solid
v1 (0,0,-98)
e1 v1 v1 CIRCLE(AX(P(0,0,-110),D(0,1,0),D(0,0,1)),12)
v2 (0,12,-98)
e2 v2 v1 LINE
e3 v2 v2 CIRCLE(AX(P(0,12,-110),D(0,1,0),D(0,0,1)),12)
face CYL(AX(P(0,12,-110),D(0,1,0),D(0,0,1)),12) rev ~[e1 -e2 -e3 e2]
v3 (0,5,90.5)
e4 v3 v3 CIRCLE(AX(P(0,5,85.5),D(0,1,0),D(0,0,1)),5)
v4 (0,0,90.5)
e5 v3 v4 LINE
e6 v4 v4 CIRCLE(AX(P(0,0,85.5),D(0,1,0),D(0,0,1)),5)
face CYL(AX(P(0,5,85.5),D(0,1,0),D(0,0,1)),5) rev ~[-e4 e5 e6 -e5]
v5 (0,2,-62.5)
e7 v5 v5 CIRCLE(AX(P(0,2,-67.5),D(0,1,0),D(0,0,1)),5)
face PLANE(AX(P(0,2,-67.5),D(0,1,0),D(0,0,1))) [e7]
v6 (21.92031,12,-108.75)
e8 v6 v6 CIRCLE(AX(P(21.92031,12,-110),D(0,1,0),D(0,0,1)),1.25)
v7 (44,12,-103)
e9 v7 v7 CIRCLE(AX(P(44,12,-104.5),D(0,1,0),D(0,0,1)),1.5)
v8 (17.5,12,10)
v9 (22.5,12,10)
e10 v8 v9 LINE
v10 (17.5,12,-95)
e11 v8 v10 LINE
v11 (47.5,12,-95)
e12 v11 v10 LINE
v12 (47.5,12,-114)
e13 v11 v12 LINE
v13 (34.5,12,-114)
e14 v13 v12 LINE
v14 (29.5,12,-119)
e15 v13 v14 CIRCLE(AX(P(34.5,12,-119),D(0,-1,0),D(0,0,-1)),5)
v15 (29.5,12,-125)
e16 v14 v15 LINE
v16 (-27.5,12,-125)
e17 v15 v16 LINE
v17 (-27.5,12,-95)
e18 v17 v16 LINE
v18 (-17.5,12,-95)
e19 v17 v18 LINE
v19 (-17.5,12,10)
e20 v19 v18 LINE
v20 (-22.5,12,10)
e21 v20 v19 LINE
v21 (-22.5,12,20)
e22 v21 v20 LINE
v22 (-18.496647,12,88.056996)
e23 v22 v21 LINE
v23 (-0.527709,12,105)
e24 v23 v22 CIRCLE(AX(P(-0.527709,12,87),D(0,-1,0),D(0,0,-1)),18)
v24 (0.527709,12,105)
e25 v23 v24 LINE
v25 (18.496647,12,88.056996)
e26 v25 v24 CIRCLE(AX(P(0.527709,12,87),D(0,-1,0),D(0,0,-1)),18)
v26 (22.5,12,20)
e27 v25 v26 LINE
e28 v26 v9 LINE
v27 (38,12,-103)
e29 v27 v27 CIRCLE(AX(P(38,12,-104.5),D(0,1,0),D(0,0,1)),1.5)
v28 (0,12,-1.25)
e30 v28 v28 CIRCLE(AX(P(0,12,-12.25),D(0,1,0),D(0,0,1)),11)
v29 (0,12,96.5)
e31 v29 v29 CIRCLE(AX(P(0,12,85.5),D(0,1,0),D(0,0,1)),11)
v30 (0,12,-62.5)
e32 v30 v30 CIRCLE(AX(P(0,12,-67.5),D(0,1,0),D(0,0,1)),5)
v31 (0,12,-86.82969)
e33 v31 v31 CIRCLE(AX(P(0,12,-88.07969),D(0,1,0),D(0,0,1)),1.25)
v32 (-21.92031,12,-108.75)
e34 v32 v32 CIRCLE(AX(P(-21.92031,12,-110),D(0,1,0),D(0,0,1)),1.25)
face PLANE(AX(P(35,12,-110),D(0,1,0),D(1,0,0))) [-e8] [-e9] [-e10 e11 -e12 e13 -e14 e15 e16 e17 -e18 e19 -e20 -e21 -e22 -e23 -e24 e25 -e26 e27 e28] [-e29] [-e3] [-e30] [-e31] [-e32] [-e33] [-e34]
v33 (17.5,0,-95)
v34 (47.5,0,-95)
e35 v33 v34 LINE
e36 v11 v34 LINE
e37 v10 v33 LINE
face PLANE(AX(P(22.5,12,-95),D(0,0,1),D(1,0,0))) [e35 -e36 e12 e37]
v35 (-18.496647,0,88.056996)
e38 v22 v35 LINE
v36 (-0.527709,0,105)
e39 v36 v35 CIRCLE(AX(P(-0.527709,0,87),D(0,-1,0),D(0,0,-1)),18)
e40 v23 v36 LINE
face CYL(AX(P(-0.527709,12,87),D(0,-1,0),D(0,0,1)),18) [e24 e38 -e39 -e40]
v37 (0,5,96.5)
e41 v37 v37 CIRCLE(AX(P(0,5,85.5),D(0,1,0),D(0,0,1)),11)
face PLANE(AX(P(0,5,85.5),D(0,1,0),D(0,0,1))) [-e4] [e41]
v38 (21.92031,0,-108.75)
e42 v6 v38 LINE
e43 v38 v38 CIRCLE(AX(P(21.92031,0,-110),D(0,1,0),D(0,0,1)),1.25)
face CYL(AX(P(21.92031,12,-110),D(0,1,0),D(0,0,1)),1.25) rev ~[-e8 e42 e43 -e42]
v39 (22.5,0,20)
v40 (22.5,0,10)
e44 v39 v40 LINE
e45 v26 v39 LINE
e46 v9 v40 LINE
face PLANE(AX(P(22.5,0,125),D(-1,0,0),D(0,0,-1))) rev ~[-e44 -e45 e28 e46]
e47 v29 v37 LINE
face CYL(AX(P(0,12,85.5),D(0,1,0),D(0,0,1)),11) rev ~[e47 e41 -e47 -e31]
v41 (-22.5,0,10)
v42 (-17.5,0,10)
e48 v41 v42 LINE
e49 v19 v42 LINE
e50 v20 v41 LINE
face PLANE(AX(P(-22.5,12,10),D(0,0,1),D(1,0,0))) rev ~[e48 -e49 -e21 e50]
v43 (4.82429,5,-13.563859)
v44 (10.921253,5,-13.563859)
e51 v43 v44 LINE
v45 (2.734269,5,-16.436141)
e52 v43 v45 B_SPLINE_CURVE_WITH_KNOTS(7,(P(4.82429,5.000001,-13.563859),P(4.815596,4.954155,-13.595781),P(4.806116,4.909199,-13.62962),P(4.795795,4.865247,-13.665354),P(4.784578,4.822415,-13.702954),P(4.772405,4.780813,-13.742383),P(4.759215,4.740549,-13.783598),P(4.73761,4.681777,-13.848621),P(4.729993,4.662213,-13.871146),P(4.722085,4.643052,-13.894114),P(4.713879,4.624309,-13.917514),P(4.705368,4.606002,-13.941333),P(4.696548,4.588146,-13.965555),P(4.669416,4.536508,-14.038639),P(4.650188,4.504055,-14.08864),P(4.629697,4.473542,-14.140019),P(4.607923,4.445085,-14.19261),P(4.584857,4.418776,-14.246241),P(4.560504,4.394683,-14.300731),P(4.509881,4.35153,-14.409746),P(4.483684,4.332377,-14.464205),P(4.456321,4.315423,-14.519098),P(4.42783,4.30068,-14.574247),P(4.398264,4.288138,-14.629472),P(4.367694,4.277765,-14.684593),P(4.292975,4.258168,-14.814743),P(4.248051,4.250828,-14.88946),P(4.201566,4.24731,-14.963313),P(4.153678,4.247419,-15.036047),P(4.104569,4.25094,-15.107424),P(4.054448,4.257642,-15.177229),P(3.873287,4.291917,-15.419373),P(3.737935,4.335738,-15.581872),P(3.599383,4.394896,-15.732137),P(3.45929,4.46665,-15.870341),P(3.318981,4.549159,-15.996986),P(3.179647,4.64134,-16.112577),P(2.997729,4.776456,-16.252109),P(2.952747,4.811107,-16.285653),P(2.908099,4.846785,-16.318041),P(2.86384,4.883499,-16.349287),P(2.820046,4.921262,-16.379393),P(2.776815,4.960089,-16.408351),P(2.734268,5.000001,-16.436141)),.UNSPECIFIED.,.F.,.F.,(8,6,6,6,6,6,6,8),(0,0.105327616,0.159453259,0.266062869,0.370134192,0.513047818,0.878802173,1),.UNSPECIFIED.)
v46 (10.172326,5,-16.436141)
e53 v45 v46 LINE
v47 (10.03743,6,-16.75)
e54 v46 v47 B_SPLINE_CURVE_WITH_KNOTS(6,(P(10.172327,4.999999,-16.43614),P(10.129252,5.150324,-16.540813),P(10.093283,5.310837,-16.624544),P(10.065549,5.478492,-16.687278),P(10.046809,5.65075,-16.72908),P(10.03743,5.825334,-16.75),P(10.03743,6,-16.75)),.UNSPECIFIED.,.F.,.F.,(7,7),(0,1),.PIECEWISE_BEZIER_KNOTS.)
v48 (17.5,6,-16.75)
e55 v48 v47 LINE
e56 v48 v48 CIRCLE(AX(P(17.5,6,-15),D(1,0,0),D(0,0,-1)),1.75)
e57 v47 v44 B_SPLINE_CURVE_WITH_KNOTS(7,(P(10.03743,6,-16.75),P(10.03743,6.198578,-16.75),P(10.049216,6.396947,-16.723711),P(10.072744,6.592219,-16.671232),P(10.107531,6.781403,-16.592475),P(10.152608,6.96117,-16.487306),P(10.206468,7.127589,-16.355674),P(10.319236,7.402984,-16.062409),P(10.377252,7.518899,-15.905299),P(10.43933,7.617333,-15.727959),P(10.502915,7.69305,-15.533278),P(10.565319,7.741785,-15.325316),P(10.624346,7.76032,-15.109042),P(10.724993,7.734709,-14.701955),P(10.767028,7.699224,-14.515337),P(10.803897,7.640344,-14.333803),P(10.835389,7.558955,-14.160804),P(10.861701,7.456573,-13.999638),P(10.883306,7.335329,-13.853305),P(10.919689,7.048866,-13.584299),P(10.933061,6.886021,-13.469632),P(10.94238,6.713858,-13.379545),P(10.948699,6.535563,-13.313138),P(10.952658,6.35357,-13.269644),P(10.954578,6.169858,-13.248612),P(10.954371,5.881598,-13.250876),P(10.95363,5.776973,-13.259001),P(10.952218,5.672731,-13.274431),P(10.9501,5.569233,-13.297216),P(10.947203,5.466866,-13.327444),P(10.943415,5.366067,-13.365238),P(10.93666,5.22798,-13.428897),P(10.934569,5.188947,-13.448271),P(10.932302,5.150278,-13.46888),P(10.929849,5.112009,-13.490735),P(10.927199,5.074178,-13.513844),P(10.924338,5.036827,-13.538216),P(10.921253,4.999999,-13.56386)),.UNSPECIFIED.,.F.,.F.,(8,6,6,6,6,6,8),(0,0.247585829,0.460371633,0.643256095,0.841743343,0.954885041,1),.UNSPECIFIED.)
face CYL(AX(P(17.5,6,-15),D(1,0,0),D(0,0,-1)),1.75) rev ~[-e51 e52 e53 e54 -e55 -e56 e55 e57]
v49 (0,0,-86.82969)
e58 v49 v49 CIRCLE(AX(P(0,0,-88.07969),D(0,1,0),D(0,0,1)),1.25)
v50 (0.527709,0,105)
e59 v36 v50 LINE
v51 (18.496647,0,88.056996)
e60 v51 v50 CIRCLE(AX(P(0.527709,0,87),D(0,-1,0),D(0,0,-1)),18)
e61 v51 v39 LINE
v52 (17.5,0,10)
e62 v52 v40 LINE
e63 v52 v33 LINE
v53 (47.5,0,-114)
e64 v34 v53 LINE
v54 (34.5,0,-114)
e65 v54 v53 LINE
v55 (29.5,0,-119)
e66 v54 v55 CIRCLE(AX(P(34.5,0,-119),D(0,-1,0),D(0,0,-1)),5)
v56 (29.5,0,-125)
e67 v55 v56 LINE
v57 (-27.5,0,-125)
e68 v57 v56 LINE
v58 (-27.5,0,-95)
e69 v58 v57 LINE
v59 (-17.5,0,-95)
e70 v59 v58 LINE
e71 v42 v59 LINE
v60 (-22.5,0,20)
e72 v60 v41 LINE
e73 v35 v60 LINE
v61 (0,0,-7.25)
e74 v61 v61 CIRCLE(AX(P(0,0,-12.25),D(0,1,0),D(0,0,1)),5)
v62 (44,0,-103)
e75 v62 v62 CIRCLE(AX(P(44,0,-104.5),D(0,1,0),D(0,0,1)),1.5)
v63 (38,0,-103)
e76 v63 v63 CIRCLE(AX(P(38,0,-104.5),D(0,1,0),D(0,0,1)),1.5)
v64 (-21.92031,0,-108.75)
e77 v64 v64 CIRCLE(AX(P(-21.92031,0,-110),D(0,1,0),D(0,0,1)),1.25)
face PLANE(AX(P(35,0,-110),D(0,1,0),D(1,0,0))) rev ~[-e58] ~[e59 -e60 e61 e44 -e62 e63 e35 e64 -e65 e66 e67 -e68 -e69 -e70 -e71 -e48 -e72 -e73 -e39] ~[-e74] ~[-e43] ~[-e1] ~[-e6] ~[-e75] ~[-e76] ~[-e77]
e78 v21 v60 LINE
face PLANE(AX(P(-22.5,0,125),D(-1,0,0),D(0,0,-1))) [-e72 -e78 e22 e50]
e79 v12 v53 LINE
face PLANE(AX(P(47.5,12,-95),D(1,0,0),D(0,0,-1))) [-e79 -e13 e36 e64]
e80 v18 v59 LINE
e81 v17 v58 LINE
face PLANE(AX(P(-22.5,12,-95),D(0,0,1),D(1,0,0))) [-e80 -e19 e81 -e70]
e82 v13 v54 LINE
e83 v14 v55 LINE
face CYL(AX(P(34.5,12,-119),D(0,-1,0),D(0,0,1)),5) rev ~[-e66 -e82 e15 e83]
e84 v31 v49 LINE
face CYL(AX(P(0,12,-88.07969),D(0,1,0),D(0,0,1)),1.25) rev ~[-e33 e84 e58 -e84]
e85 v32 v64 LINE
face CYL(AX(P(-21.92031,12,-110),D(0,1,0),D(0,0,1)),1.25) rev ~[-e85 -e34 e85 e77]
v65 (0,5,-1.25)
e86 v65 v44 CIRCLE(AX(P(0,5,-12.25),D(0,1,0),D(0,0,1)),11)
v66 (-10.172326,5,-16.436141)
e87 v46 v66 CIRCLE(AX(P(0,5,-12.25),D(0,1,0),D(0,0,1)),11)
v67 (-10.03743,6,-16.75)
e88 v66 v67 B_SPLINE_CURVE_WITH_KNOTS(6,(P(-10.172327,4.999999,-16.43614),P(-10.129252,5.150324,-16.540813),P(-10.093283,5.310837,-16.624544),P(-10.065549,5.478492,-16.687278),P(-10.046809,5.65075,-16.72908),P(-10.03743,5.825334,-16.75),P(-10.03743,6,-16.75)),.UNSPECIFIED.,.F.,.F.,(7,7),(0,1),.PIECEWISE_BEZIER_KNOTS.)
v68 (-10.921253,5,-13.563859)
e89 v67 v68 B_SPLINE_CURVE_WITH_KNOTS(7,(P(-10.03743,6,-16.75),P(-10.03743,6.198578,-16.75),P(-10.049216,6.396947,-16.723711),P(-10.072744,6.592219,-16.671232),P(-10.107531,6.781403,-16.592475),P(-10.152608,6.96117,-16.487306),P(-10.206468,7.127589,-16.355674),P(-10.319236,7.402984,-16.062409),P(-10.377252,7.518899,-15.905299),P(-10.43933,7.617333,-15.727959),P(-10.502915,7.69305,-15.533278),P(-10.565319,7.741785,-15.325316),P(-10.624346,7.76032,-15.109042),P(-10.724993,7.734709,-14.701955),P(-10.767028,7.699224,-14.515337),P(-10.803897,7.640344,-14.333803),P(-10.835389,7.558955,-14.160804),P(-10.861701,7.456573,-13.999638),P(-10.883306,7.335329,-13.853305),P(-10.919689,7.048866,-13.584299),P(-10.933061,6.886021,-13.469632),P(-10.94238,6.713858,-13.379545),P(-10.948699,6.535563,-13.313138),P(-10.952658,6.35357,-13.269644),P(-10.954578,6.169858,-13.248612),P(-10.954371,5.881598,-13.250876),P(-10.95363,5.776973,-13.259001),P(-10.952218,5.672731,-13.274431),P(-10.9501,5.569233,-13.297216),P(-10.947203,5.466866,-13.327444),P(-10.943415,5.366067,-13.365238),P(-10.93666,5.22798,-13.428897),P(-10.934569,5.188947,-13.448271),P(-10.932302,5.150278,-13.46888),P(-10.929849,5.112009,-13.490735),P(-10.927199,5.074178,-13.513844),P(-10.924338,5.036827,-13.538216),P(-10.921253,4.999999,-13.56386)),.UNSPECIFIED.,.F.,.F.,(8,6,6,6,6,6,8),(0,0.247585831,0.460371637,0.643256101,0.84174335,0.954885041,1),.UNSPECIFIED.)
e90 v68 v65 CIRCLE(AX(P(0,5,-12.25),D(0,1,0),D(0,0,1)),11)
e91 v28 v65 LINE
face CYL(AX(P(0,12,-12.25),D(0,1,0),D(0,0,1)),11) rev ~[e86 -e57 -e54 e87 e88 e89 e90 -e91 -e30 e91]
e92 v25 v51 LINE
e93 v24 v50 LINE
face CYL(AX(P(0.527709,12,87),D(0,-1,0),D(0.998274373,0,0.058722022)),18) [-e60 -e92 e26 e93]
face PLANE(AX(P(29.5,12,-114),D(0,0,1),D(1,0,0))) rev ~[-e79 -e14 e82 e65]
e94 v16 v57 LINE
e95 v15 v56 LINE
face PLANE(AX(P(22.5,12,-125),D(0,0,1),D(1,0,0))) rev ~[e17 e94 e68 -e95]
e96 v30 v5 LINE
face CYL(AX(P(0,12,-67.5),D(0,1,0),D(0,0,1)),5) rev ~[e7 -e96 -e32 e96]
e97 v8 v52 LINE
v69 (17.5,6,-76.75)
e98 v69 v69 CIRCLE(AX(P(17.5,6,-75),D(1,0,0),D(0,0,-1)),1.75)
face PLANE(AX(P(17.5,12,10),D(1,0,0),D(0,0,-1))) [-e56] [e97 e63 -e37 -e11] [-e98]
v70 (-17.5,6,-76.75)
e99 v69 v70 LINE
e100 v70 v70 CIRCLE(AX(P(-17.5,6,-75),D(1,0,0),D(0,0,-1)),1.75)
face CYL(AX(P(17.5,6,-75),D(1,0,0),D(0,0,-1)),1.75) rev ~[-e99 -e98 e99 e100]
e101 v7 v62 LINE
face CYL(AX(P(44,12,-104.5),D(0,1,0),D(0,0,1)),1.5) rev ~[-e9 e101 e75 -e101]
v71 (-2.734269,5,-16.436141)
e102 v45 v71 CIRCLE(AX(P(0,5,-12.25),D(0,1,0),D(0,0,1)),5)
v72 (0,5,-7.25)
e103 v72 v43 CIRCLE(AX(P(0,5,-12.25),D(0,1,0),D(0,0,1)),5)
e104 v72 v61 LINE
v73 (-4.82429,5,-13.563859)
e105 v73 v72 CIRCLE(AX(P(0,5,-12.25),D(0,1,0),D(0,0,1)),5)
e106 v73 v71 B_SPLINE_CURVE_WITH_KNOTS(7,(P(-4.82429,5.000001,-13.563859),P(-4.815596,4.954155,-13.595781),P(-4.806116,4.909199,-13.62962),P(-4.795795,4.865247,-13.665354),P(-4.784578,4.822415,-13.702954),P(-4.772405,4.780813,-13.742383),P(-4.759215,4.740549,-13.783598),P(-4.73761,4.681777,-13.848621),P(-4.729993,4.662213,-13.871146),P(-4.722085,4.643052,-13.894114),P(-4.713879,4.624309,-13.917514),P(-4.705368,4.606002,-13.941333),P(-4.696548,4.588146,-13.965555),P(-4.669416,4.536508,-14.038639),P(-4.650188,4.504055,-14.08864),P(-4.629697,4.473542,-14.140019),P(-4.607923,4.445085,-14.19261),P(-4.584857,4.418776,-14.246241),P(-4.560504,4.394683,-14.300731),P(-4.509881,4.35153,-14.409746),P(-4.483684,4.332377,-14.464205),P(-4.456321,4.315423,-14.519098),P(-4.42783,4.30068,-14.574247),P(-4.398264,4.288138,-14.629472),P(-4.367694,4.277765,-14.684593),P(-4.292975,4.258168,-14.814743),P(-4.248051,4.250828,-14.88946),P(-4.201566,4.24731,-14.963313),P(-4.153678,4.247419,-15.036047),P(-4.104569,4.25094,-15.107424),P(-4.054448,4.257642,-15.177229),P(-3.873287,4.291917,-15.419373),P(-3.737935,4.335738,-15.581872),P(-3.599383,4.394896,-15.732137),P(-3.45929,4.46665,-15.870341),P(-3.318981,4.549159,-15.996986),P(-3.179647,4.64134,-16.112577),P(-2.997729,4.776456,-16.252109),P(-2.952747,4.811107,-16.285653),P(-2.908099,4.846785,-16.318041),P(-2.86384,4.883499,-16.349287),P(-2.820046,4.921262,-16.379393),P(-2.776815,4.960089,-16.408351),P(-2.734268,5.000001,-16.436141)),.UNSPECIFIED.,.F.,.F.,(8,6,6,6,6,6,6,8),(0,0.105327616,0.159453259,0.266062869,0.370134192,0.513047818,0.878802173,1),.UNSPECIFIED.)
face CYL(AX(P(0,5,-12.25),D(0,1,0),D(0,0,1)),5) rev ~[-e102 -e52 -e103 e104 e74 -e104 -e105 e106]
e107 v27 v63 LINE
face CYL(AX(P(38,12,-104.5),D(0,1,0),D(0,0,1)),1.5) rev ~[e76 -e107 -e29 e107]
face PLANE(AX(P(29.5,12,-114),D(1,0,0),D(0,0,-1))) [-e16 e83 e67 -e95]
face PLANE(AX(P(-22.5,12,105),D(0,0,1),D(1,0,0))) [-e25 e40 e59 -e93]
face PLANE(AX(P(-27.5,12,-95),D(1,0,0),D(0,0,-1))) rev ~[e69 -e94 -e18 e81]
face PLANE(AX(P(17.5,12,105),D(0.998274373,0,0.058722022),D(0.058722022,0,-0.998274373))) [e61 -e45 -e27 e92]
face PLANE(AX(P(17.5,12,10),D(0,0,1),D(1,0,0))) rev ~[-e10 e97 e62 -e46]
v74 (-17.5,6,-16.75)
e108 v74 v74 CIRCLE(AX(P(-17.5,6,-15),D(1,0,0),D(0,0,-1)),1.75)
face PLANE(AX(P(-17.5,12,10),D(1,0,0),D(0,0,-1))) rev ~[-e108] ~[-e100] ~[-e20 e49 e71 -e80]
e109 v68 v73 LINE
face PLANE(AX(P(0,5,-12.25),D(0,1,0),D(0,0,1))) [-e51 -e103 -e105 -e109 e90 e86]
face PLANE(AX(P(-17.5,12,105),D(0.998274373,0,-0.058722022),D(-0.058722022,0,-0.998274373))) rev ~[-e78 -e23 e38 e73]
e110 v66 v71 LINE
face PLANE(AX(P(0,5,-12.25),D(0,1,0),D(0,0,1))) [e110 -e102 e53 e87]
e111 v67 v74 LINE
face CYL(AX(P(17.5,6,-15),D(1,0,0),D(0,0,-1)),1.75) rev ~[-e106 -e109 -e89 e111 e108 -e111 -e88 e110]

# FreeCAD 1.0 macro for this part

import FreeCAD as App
import Part
import Sketcher
Q = App.Units.Quantity


def edges_at(feature, points):
    """Names of the edges that pass closest to the given points."""
    edges = feature.Shape.Edges
    near = lambda p: min(range(len(edges)), key=lambda i: edges[i].distToShape(Part.Vertex(*p))[0])
    return sorted({f"Edge{near(p) + 1}" for p in points})

doc = App.newDocument("Part")
params = doc.addObject("Spreadsheet::Sheet", "Params")
for row, (alias, value) in enumerate([
    ("sketch1_width", "45 mm"),
    ("sketch1_height", "250 mm"),
    ("pad1_length", "12 mm"),
    ("sketch2_width", "5 mm"),
    ("sketch2_height", "105 mm"),
    ("pocket1_length", "12 mm"),
    ("sketch3_diameter", "3.5 mm"),
    ("pocket2_length", "35 mm"),
    ("sketch4_width", "25 mm"),
    ("sketch4_width2", "5 mm"),
    ("sketch4_height", "30 mm"),
    ("pad2_length", "12 mm"),
    ("sketch5_diameter", "24 mm"),
    ("sketch5_diameter2", "2.5 mm"),
    ("pocket3_length", "35 mm"),
    ("sketch6_width", "18 mm"),
    ("sketch6_height", "11 mm"),
    ("pocket4_length", "12 mm"),
    ("sketch7_diameter", "22 mm"),
    ("pocket5_length", "7 mm"),
    ("sketch8_width", "45 mm"),
    ("sketch8_height", "20 mm"),
    ("pocket6_length", "20 mm"),
    ("fillet_radius", "5 mm"),
    ("sketch9_diameter", "10 mm"),
    ("pocket7_length", "10 mm"),
    ("sketch10_diameter", "3 mm"),
    ("pocket8_length", "12 mm"),
    ("sketch11_width", "5 mm"),
    ("sketch11_height", "85 mm"),
    ("pocket9_length", "20 mm"),
    ("fillet2_radius", "18 mm"),
    ("sketch12_diameter", "10 mm"),
    ("pocket10_length", "10 mm"),
], start=1):
    params.set(f"A{row}", alias)
    params.set(f"B{row}", "=" + value)
    params.setAlias(f"B{row}", alias)

body = doc.addObject("PartDesign::Body", "Body")

sketch1 = body.newObject("Sketcher::SketchObject", "Sketch")
sketch1.AttachmentSupport = (doc.getObject("XZ_Plane"), [""])
sketch1.MapMode = "FlatFace"
sketch1.addGeometry(Part.LineSegment(App.Vector(-22.5, -125, 0), App.Vector(-22.5, 125, 0)), False)
sketch1.addGeometry(Part.LineSegment(App.Vector(-22.5, 125, 0), App.Vector(22.5, 125, 0)), False)
sketch1.addGeometry(Part.LineSegment(App.Vector(22.5, 125, 0), App.Vector(22.5, -125, 0)), False)
sketch1.addGeometry(Part.LineSegment(App.Vector(22.5, -125, 0), App.Vector(-22.5, -125, 0)), False)
sketch1.addConstraint(Sketcher.Constraint("Coincident", 0, 2, 1, 1))
sketch1.addConstraint(Sketcher.Constraint("Coincident", 1, 2, 2, 1))
sketch1.addConstraint(Sketcher.Constraint("Coincident", 2, 2, 3, 1))
sketch1.addConstraint(Sketcher.Constraint("Coincident", 3, 2, 0, 1))
sketch1.addConstraint(Sketcher.Constraint("Vertical", 0))
sketch1.addConstraint(Sketcher.Constraint("Horizontal", 1))
sketch1.addConstraint(Sketcher.Constraint("Vertical", 2))
sketch1.addConstraint(Sketcher.Constraint("Horizontal", 3))
sketch1.addConstraint(Sketcher.Constraint("Symmetric", 0, 2, 2, 2, -1, 1))
sketch1.addConstraint(Sketcher.Constraint("DistanceX", 1, 1, 1, 2, Q("45 mm")))
sketch1.addConstraint(Sketcher.Constraint("DistanceY", 0, 1, 0, 2, Q("250 mm")))
sketch1.setExpression("Constraints[9]", "Params.sketch1_width")
sketch1.setExpression("Constraints[10]", "Params.sketch1_height")
pad1 = body.newObject("PartDesign::Pad", "Pad")
pad1.Profile = sketch1
pad1.setExpression("Length", "Params.pad1_length")
pad1.Reversed = True

sketch2 = body.newObject("Sketcher::SketchObject", "Sketch001")
sketch2.AttachmentSupport = (doc.getObject("XZ_Plane"), [""])
sketch2.MapMode = "FlatFace"
sketch2.AttachmentOffset = App.Placement(App.Vector(0, 0, -12), App.Rotation())
sketch2.addGeometry(Part.LineSegment(App.Vector(17.5, -95, 0), App.Vector(17.5, 10, 0)), False)
sketch2.addGeometry(Part.LineSegment(App.Vector(17.5, 10, 0), App.Vector(22.5, 10, 0)), False)
sketch2.addGeometry(Part.LineSegment(App.Vector(22.5, 10, 0), App.Vector(22.5, -95, 0)), False)
sketch2.addGeometry(Part.LineSegment(App.Vector(22.5, -95, 0), App.Vector(17.5, -95, 0)), False)
sketch2.addGeometry(Part.LineSegment(App.Vector(-22.5, -95, 0), App.Vector(-22.5, 10, 0)), False)
sketch2.addGeometry(Part.LineSegment(App.Vector(-22.5, 10, 0), App.Vector(-17.5, 10, 0)), False)
sketch2.addGeometry(Part.LineSegment(App.Vector(-17.5, 10, 0), App.Vector(-17.5, -95, 0)), False)
sketch2.addGeometry(Part.LineSegment(App.Vector(-17.5, -95, 0), App.Vector(-22.5, -95, 0)), False)
sketch2.addConstraint(Sketcher.Constraint("Coincident", 0, 2, 1, 1))
sketch2.addConstraint(Sketcher.Constraint("Coincident", 1, 2, 2, 1))
sketch2.addConstraint(Sketcher.Constraint("Coincident", 2, 2, 3, 1))
sketch2.addConstraint(Sketcher.Constraint("Coincident", 3, 2, 0, 1))
sketch2.addConstraint(Sketcher.Constraint("Coincident", 4, 2, 5, 1))
sketch2.addConstraint(Sketcher.Constraint("Coincident", 5, 2, 6, 1))
sketch2.addConstraint(Sketcher.Constraint("Coincident", 6, 2, 7, 1))
sketch2.addConstraint(Sketcher.Constraint("Coincident", 7, 2, 4, 1))
sketch2.addConstraint(Sketcher.Constraint("Vertical", 0))
sketch2.addConstraint(Sketcher.Constraint("Horizontal", 1))
sketch2.addConstraint(Sketcher.Constraint("Vertical", 2))
sketch2.addConstraint(Sketcher.Constraint("Horizontal", 3))
sketch2.addConstraint(Sketcher.Constraint("Vertical", 4))
sketch2.addConstraint(Sketcher.Constraint("Horizontal", 5))
sketch2.addConstraint(Sketcher.Constraint("Vertical", 6))
sketch2.addConstraint(Sketcher.Constraint("Horizontal", 7))
sketch2.addConstraint(Sketcher.Constraint("Symmetric", 1, 2, 4, 2, -2))
sketch2.addConstraint(Sketcher.Constraint("Symmetric", 3, 2, 6, 2, -2))
sketch2.addConstraint(Sketcher.Constraint("DistanceX", 1, 1, 1, 2, Q("5 mm")))
sketch2.addConstraint(Sketcher.Constraint("DistanceY", 0, 1, 0, 2, Q("105 mm")))
sketch2.addConstraint(Sketcher.Constraint("DistanceY", -1, 1, 0, 2, Q("10 mm")))
sketch2.addConstraint(Sketcher.Constraint("DistanceX", 4, 2, 0, 2, Q("40 mm")))
sketch2.setExpression("Constraints[18]", "Params.sketch2_width")
sketch2.setExpression("Constraints[19]", "Params.sketch2_height")
pocket1 = body.newObject("PartDesign::Pocket", "Pocket")
pocket1.Profile = sketch2
pocket1.setExpression("Length", "Params.pocket1_length")
pocket1.Reversed = True

sketch3 = body.newObject("Sketcher::SketchObject", "Sketch002")
sketch3.AttachmentSupport = (doc.getObject("YZ_Plane"), [""])
sketch3.MapMode = "FlatFace"
sketch3.AttachmentOffset = App.Placement(App.Vector(0, 0, 17.5), App.Rotation())
sketch3.addGeometry(Part.Circle(App.Vector(6, -15, 0), App.Vector(0, 0, 1), 1.75), False)
sketch3.addGeometry(Part.Circle(App.Vector(6, -75, 0), App.Vector(0, 0, 1), 1.75), False)
sketch3.addConstraint(Sketcher.Constraint("Equal", 0, 1))
sketch3.addConstraint(Sketcher.Constraint("Vertical", 0, 3, 1, 3))
sketch3.addConstraint(Sketcher.Constraint("Diameter", 0, Q("3.5 mm")))
sketch3.addConstraint(Sketcher.Constraint("DistanceX", -1, 1, 0, 3, Q("6 mm")))
sketch3.addConstraint(Sketcher.Constraint("DistanceY", 0, 3, -1, 1, Q("15 mm")))
sketch3.addConstraint(Sketcher.Constraint("DistanceY", 1, 3, -1, 1, Q("75 mm")))
sketch3.setExpression("Constraints[2]", "Params.sketch3_diameter")
pocket2 = body.newObject("PartDesign::Pocket", "Pocket001")
pocket2.Profile = sketch3
pocket2.setExpression("Length", "Params.pocket2_length")

sketch4 = body.newObject("Sketcher::SketchObject", "Sketch003")
sketch4.AttachmentSupport = (doc.getObject("XZ_Plane"), [""])
sketch4.MapMode = "FlatFace"
sketch4.AttachmentOffset = App.Placement(App.Vector(0, 0, -12), App.Rotation())
sketch4.addGeometry(Part.LineSegment(App.Vector(22.5, -125, 0), App.Vector(22.5, -95, 0)), False)
sketch4.addGeometry(Part.LineSegment(App.Vector(22.5, -95, 0), App.Vector(47.5, -95, 0)), False)
sketch4.addGeometry(Part.LineSegment(App.Vector(47.5, -95, 0), App.Vector(47.5, -125, 0)), False)
sketch4.addGeometry(Part.LineSegment(App.Vector(47.5, -125, 0), App.Vector(22.5, -125, 0)), False)
sketch4.addGeometry(Part.LineSegment(App.Vector(-27.5, -125, 0), App.Vector(-27.5, -95, 0)), False)
sketch4.addGeometry(Part.LineSegment(App.Vector(-27.5, -95, 0), App.Vector(-22.5, -95, 0)), False)
sketch4.addGeometry(Part.LineSegment(App.Vector(-22.5, -95, 0), App.Vector(-22.5, -125, 0)), False)
sketch4.addGeometry(Part.LineSegment(App.Vector(-22.5, -125, 0), App.Vector(-27.5, -125, 0)), False)
sketch4.addConstraint(Sketcher.Constraint("Coincident", 0, 2, 1, 1))
sketch4.addConstraint(Sketcher.Constraint("Coincident", 1, 2, 2, 1))
sketch4.addConstraint(Sketcher.Constraint("Coincident", 2, 2, 3, 1))
sketch4.addConstraint(Sketcher.Constraint("Coincident", 3, 2, 0, 1))
sketch4.addConstraint(Sketcher.Constraint("Coincident", 4, 2, 5, 1))
sketch4.addConstraint(Sketcher.Constraint("Coincident", 5, 2, 6, 1))
sketch4.addConstraint(Sketcher.Constraint("Coincident", 6, 2, 7, 1))
sketch4.addConstraint(Sketcher.Constraint("Coincident", 7, 2, 4, 1))
sketch4.addConstraint(Sketcher.Constraint("Vertical", 0))
sketch4.addConstraint(Sketcher.Constraint("Horizontal", 1))
sketch4.addConstraint(Sketcher.Constraint("Vertical", 2))
sketch4.addConstraint(Sketcher.Constraint("Horizontal", 3))
sketch4.addConstraint(Sketcher.Constraint("Vertical", 4))
sketch4.addConstraint(Sketcher.Constraint("Horizontal", 5))
sketch4.addConstraint(Sketcher.Constraint("Vertical", 6))
sketch4.addConstraint(Sketcher.Constraint("Horizontal", 7))
sketch4.addConstraint(Sketcher.Constraint("Symmetric", 0, 2, 5, 2, -2))
sketch4.addConstraint(Sketcher.Constraint("Horizontal", 3, 2, 6, 2))
sketch4.addConstraint(Sketcher.Constraint("DistanceX", 1, 1, 1, 2, Q("25 mm")))
sketch4.addConstraint(Sketcher.Constraint("DistanceX", 5, 1, 5, 2, Q("5 mm")))
sketch4.addConstraint(Sketcher.Constraint("DistanceY", 0, 1, 0, 2, Q("30 mm")))
sketch4.addConstraint(Sketcher.Constraint("DistanceY", 0, 2, -1, 1, Q("95 mm")))
sketch4.addConstraint(Sketcher.Constraint("DistanceX", 4, 2, 0, 2, Q("50 mm")))
sketch4.setExpression("Constraints[18]", "Params.sketch4_width")
sketch4.setExpression("Constraints[19]", "Params.sketch4_width2")
sketch4.setExpression("Constraints[20]", "Params.sketch4_height")
pad2 = body.newObject("PartDesign::Pad", "Pad001")
pad2.Profile = sketch4
pad2.setExpression("Length", "Params.pad2_length")

sketch5 = body.newObject("Sketcher::SketchObject", "Sketch004")
sketch5.AttachmentSupport = (doc.getObject("XZ_Plane"), [""])
sketch5.MapMode = "FlatFace"
sketch5.AttachmentOffset = App.Placement(App.Vector(0, 0, -12), App.Rotation())
sketch5.addGeometry(Part.Circle(App.Vector(0, -110, 0), App.Vector(0, 0, 1), 12), False)
sketch5.addGeometry(Part.Circle(App.Vector(21.92031, -110, 0), App.Vector(0, 0, 1), 1.25), False)
sketch5.addGeometry(Part.Circle(App.Vector(-21.92031, -110, 0), App.Vector(0, 0, 1), 1.25), False)
sketch5.addGeometry(Part.Circle(App.Vector(0, -88.07969, 0), App.Vector(0, 0, 1), 1.25), False)
sketch5.addConstraint(Sketcher.Constraint("Equal", 1, 2))
sketch5.addConstraint(Sketcher.Constraint("Equal", 2, 3))
sketch5.addConstraint(Sketcher.Constraint("Symmetric", 1, 3, 2, 3, -2))
sketch5.addConstraint(Sketcher.Constraint("PointOnObject", 0, 3, -2))
sketch5.addConstraint(Sketcher.Constraint("PointOnObject", 3, 3, -2))
sketch5.addConstraint(Sketcher.Constraint("Horizontal", 0, 3, 1, 3))
sketch5.addConstraint(Sketcher.Constraint("Diameter", 0, Q("24 mm")))
sketch5.addConstraint(Sketcher.Constraint("Diameter", 1, Q("2.5 mm")))
sketch5.addConstraint(Sketcher.Constraint("DistanceY", 0, 3, -1, 1, Q("110 mm")))
sketch5.addConstraint(Sketcher.Constraint("DistanceX", -1, 1, 1, 3, Q("21.92031 mm")))
sketch5.addConstraint(Sketcher.Constraint("DistanceY", 3, 3, -1, 1, Q("88.07969 mm")))
sketch5.setExpression("Constraints[6]", "Params.sketch5_diameter")
sketch5.setExpression("Constraints[7]", "Params.sketch5_diameter2")
pocket3 = body.newObject("PartDesign::Pocket", "Pocket002")
pocket3.Profile = sketch5
pocket3.setExpression("Length", "Params.pocket3_length")
pocket3.Reversed = True

sketch6 = body.newObject("Sketcher::SketchObject", "Sketch005")
sketch6.AttachmentSupport = (doc.getObject("XZ_Plane"), [""])
sketch6.MapMode = "FlatFace"
sketch6.AttachmentOffset = App.Placement(App.Vector(0, 0, -12), App.Rotation())
sketch6.addGeometry(Part.LineSegment(App.Vector(29.5, -125, 0), App.Vector(29.5, -114, 0)), False)
sketch6.addGeometry(Part.LineSegment(App.Vector(29.5, -114, 0), App.Vector(47.5, -114, 0)), False)
sketch6.addGeometry(Part.LineSegment(App.Vector(47.5, -114, 0), App.Vector(47.5, -125, 0)), False)
sketch6.addGeometry(Part.LineSegment(App.Vector(47.5, -125, 0), App.Vector(29.5, -125, 0)), False)
sketch6.addConstraint(Sketcher.Constraint("Coincident", 0, 2, 1, 1))
sketch6.addConstraint(Sketcher.Constraint("Coincident", 1, 2, 2, 1))
sketch6.addConstraint(Sketcher.Constraint("Coincident", 2, 2, 3, 1))
sketch6.addConstraint(Sketcher.Constraint("Coincident", 3, 2, 0, 1))
sketch6.addConstraint(Sketcher.Constraint("Vertical", 0))
sketch6.addConstraint(Sketcher.Constraint("Horizontal", 1))
sketch6.addConstraint(Sketcher.Constraint("Vertical", 2))
sketch6.addConstraint(Sketcher.Constraint("Horizontal", 3))
sketch6.addConstraint(Sketcher.Constraint("DistanceX", 1, 1, 1, 2, Q("18 mm")))
sketch6.addConstraint(Sketcher.Constraint("DistanceY", 0, 1, 0, 2, Q("11 mm")))
sketch6.addConstraint(Sketcher.Constraint("DistanceY", 0, 2, -1, 1, Q("114 mm")))
sketch6.addConstraint(Sketcher.Constraint("DistanceX", -1, 1, 0, 2, Q("29.5 mm")))
sketch6.setExpression("Constraints[8]", "Params.sketch6_width")
sketch6.setExpression("Constraints[9]", "Params.sketch6_height")
pocket4 = body.newObject("PartDesign::Pocket", "Pocket003")
pocket4.Profile = sketch6
pocket4.setExpression("Length", "Params.pocket4_length")
pocket4.Reversed = True

sketch7 = body.newObject("Sketcher::SketchObject", "Sketch006")
sketch7.AttachmentSupport = (doc.getObject("XZ_Plane"), [""])
sketch7.MapMode = "FlatFace"
sketch7.AttachmentOffset = App.Placement(App.Vector(0, 0, -12), App.Rotation())
sketch7.addGeometry(Part.Circle(App.Vector(0, -12.25, 0), App.Vector(0, 0, 1), 11), False)
sketch7.addGeometry(Part.Circle(App.Vector(0, 85.5, 0), App.Vector(0, 0, 1), 11), False)
sketch7.addConstraint(Sketcher.Constraint("Equal", 0, 1))
sketch7.addConstraint(Sketcher.Constraint("PointOnObject", 0, 3, -2))
sketch7.addConstraint(Sketcher.Constraint("PointOnObject", 1, 3, -2))
sketch7.addConstraint(Sketcher.Constraint("Diameter", 0, Q("22 mm")))
sketch7.addConstraint(Sketcher.Constraint("DistanceY", -1, 1, 1, 3, Q("85.5 mm")))
sketch7.addConstraint(Sketcher.Constraint("DistanceY", 0, 3, -1, 1, Q("12.25 mm")))
sketch7.setExpression("Constraints[3]", "Params.sketch7_diameter")
pocket5 = body.newObject("PartDesign::Pocket", "Pocket004")
pocket5.Profile = sketch7
pocket5.setExpression("Length", "Params.pocket5_length")
pocket5.Reversed = True

sketch8 = body.newObject("Sketcher::SketchObject", "Sketch007")
sketch8.AttachmentSupport = (doc.getObject("XZ_Plane"), [""])
sketch8.MapMode = "FlatFace"
sketch8.AttachmentOffset = App.Placement(App.Vector(0, 0, -12), App.Rotation())
sketch8.addGeometry(Part.LineSegment(App.Vector(-22.5, 105, 0), App.Vector(-22.5, 125, 0)), False)
sketch8.addGeometry(Part.LineSegment(App.Vector(-22.5, 125, 0), App.Vector(22.5, 125, 0)), False)
sketch8.addGeometry(Part.LineSegment(App.Vector(22.5, 125, 0), App.Vector(22.5, 105, 0)), False)
sketch8.addGeometry(Part.LineSegment(App.Vector(22.5, 105, 0), App.Vector(-22.5, 105, 0)), False)
sketch8.addConstraint(Sketcher.Constraint("Coincident", 0, 2, 1, 1))
sketch8.addConstraint(Sketcher.Constraint("Coincident", 1, 2, 2, 1))
sketch8.addConstraint(Sketcher.Constraint("Coincident", 2, 2, 3, 1))
sketch8.addConstraint(Sketcher.Constraint("Coincident", 3, 2, 0, 1))
sketch8.addConstraint(Sketcher.Constraint("Vertical", 0))
sketch8.addConstraint(Sketcher.Constraint("Horizontal", 1))
sketch8.addConstraint(Sketcher.Constraint("Vertical", 2))
sketch8.addConstraint(Sketcher.Constraint("Horizontal", 3))
sketch8.addConstraint(Sketcher.Constraint("DistanceX", 1, 1, 1, 2, Q("45 mm")))
sketch8.addConstraint(Sketcher.Constraint("DistanceY", 0, 1, 0, 2, Q("20 mm")))
sketch8.addConstraint(Sketcher.Constraint("DistanceY", -1, 1, 0, 2, Q("125 mm")))
sketch8.addConstraint(Sketcher.Constraint("DistanceX", 0, 2, -1, 1, Q("22.5 mm")))
sketch8.setExpression("Constraints[8]", "Params.sketch8_width")
sketch8.setExpression("Constraints[9]", "Params.sketch8_height")
pocket6 = body.newObject("PartDesign::Pocket", "Pocket005")
pocket6.Profile = sketch8
pocket6.setExpression("Length", "Params.pocket6_length")
pocket6.Reversed = True
doc.recompute()

fillet = body.newObject("PartDesign::Fillet", "Fillet")
fillet.Base = (pocket6, edges_at(pocket6, [(29.5, 6, -114)]))
fillet.setExpression("Radius", "Params.fillet_radius")

sketch9 = body.newObject("Sketcher::SketchObject", "Sketch008")
sketch9.AttachmentSupport = (doc.getObject("XZ_Plane"), [""])
sketch9.MapMode = "FlatFace"
sketch9.AttachmentOffset = App.Placement(App.Vector(0, 0, -5), App.Rotation())
sketch9.addGeometry(Part.Circle(App.Vector(0, 85.5, 0), App.Vector(0, 0, 1), 5), False)
sketch9.addGeometry(Part.Circle(App.Vector(0, -12.25, 0), App.Vector(0, 0, 1), 5), False)
sketch9.addConstraint(Sketcher.Constraint("Equal", 0, 1))
sketch9.addConstraint(Sketcher.Constraint("PointOnObject", 0, 3, -2))
sketch9.addConstraint(Sketcher.Constraint("PointOnObject", 1, 3, -2))
sketch9.addConstraint(Sketcher.Constraint("Diameter", 0, Q("10 mm")))
sketch9.addConstraint(Sketcher.Constraint("DistanceY", -1, 1, 0, 3, Q("85.5 mm")))
sketch9.addConstraint(Sketcher.Constraint("DistanceY", 1, 3, -1, 1, Q("12.25 mm")))
sketch9.setExpression("Constraints[3]", "Params.sketch9_diameter")
pocket7 = body.newObject("PartDesign::Pocket", "Pocket006")
pocket7.Profile = sketch9
pocket7.setExpression("Length", "Params.pocket7_length")
pocket7.Reversed = True

sketch10 = body.newObject("Sketcher::SketchObject", "Sketch009")
sketch10.AttachmentSupport = (doc.getObject("XZ_Plane"), [""])
sketch10.MapMode = "FlatFace"
sketch10.AttachmentOffset = App.Placement(App.Vector(0, 0, -12), App.Rotation())
sketch10.addGeometry(Part.Circle(App.Vector(38, -104.5, 0), App.Vector(0, 0, 1), 1.5), False)
sketch10.addGeometry(Part.Circle(App.Vector(44, -104.5, 0), App.Vector(0, 0, 1), 1.5), False)
sketch10.addConstraint(Sketcher.Constraint("Equal", 0, 1))
sketch10.addConstraint(Sketcher.Constraint("Horizontal", 0, 3, 1, 3))
sketch10.addConstraint(Sketcher.Constraint("Diameter", 0, Q("3 mm")))
sketch10.addConstraint(Sketcher.Constraint("DistanceX", -1, 1, 0, 3, Q("38 mm")))
sketch10.addConstraint(Sketcher.Constraint("DistanceX", -1, 1, 1, 3, Q("44 mm")))
sketch10.addConstraint(Sketcher.Constraint("DistanceY", 0, 3, -1, 1, Q("104.5 mm")))
sketch10.setExpression("Constraints[2]", "Params.sketch10_diameter")
pocket8 = body.newObject("PartDesign::Pocket", "Pocket007")
pocket8.Profile = sketch10
pocket8.setExpression("Length", "Params.pocket8_length")
pocket8.Reversed = True

sketch11 = body.newObject("Sketcher::SketchObject", "Sketch010")
sketch11.AttachmentSupport = (doc.getObject("XZ_Plane"), [""])
sketch11.MapMode = "FlatFace"
sketch11.AttachmentOffset = App.Placement(App.Vector(0, 0, -12), App.Rotation())
sketch11.addGeometry(Part.LineSegment(App.Vector(-22.5, 20, 0), App.Vector(-22.5, 105, 0)), False)
sketch11.addGeometry(Part.LineSegment(App.Vector(-22.5, 105, 0), App.Vector(-17.5, 105, 0)), False)
sketch11.addGeometry(Part.LineSegment(App.Vector(-17.5, 105, 0), App.Vector(-22.5, 20, 0)), False)
sketch11.addGeometry(Part.LineSegment(App.Vector(22.5, 20, 0), App.Vector(17.5, 105, 0)), False)
sketch11.addGeometry(Part.LineSegment(App.Vector(17.5, 105, 0), App.Vector(22.5, 105, 0)), False)
sketch11.addGeometry(Part.LineSegment(App.Vector(22.5, 105, 0), App.Vector(22.5, 20, 0)), False)
sketch11.addConstraint(Sketcher.Constraint("Coincident", 0, 2, 1, 1))
sketch11.addConstraint(Sketcher.Constraint("Coincident", 1, 2, 2, 1))
sketch11.addConstraint(Sketcher.Constraint("Coincident", 2, 2, 0, 1))
sketch11.addConstraint(Sketcher.Constraint("Coincident", 3, 2, 4, 1))
sketch11.addConstraint(Sketcher.Constraint("Coincident", 4, 2, 5, 1))
sketch11.addConstraint(Sketcher.Constraint("Coincident", 5, 2, 3, 1))
sketch11.addConstraint(Sketcher.Constraint("Vertical", 0))
sketch11.addConstraint(Sketcher.Constraint("Horizontal", 1))
sketch11.addConstraint(Sketcher.Constraint("Horizontal", 4))
sketch11.addConstraint(Sketcher.Constraint("Vertical", 5))
sketch11.addConstraint(Sketcher.Constraint("Symmetric", 1, 2, 3, 2, -2))
sketch11.addConstraint(Sketcher.Constraint("Symmetric", 2, 2, 5, 2, -2))
sketch11.addConstraint(Sketcher.Constraint("DistanceX", 1, 1, 1, 2, Q("5 mm")))
sketch11.addConstraint(Sketcher.Constraint("DistanceY", 0, 1, 0, 2, Q("85 mm")))
sketch11.addConstraint(Sketcher.Constraint("DistanceY", -1, 1, 0, 2, Q("105 mm")))
sketch11.addConstraint(Sketcher.Constraint("DistanceX", 1, 2, 3, 2, Q("35 mm")))
sketch11.setExpression("Constraints[12]", "Params.sketch11_width")
sketch11.setExpression("Constraints[13]", "Params.sketch11_height")
pocket9 = body.newObject("PartDesign::Pocket", "Pocket008")
pocket9.Profile = sketch11
pocket9.setExpression("Length", "Params.pocket9_length")
pocket9.Reversed = True
doc.recompute()

fillet2 = body.newObject("PartDesign::Fillet", "Fillet001")
fillet2.Base = (pocket9, edges_at(pocket9, [(17.5, 6, 105), (-17.5, 6, 105)]))
fillet2.setExpression("Radius", "Params.fillet2_radius")

sketch12 = body.newObject("Sketcher::SketchObject", "Sketch011")
sketch12.AttachmentSupport = (doc.getObject("XZ_Plane"), [""])
sketch12.MapMode = "FlatFace"
sketch12.AttachmentOffset = App.Placement(App.Vector(0, 0, -12), App.Rotation())
sketch12.addGeometry(Part.Circle(App.Vector(0, -67.5, 0), App.Vector(0, 0, 1), 5), False)
sketch12.addConstraint(Sketcher.Constraint("PointOnObject", 0, 3, -2))
sketch12.addConstraint(Sketcher.Constraint("Diameter", 0, Q("10 mm")))
sketch12.addConstraint(Sketcher.Constraint("DistanceY", 0, 3, -1, 1, Q("67.5 mm")))
sketch12.setExpression("Constraints[1]", "Params.sketch12_diameter")
pocket10 = body.newObject("PartDesign::Pocket", "Pocket009")
pocket10.Profile = sketch12
pocket10.setExpression("Length", "Params.pocket10_length")
pocket10.Reversed = True

doc.recompute()
